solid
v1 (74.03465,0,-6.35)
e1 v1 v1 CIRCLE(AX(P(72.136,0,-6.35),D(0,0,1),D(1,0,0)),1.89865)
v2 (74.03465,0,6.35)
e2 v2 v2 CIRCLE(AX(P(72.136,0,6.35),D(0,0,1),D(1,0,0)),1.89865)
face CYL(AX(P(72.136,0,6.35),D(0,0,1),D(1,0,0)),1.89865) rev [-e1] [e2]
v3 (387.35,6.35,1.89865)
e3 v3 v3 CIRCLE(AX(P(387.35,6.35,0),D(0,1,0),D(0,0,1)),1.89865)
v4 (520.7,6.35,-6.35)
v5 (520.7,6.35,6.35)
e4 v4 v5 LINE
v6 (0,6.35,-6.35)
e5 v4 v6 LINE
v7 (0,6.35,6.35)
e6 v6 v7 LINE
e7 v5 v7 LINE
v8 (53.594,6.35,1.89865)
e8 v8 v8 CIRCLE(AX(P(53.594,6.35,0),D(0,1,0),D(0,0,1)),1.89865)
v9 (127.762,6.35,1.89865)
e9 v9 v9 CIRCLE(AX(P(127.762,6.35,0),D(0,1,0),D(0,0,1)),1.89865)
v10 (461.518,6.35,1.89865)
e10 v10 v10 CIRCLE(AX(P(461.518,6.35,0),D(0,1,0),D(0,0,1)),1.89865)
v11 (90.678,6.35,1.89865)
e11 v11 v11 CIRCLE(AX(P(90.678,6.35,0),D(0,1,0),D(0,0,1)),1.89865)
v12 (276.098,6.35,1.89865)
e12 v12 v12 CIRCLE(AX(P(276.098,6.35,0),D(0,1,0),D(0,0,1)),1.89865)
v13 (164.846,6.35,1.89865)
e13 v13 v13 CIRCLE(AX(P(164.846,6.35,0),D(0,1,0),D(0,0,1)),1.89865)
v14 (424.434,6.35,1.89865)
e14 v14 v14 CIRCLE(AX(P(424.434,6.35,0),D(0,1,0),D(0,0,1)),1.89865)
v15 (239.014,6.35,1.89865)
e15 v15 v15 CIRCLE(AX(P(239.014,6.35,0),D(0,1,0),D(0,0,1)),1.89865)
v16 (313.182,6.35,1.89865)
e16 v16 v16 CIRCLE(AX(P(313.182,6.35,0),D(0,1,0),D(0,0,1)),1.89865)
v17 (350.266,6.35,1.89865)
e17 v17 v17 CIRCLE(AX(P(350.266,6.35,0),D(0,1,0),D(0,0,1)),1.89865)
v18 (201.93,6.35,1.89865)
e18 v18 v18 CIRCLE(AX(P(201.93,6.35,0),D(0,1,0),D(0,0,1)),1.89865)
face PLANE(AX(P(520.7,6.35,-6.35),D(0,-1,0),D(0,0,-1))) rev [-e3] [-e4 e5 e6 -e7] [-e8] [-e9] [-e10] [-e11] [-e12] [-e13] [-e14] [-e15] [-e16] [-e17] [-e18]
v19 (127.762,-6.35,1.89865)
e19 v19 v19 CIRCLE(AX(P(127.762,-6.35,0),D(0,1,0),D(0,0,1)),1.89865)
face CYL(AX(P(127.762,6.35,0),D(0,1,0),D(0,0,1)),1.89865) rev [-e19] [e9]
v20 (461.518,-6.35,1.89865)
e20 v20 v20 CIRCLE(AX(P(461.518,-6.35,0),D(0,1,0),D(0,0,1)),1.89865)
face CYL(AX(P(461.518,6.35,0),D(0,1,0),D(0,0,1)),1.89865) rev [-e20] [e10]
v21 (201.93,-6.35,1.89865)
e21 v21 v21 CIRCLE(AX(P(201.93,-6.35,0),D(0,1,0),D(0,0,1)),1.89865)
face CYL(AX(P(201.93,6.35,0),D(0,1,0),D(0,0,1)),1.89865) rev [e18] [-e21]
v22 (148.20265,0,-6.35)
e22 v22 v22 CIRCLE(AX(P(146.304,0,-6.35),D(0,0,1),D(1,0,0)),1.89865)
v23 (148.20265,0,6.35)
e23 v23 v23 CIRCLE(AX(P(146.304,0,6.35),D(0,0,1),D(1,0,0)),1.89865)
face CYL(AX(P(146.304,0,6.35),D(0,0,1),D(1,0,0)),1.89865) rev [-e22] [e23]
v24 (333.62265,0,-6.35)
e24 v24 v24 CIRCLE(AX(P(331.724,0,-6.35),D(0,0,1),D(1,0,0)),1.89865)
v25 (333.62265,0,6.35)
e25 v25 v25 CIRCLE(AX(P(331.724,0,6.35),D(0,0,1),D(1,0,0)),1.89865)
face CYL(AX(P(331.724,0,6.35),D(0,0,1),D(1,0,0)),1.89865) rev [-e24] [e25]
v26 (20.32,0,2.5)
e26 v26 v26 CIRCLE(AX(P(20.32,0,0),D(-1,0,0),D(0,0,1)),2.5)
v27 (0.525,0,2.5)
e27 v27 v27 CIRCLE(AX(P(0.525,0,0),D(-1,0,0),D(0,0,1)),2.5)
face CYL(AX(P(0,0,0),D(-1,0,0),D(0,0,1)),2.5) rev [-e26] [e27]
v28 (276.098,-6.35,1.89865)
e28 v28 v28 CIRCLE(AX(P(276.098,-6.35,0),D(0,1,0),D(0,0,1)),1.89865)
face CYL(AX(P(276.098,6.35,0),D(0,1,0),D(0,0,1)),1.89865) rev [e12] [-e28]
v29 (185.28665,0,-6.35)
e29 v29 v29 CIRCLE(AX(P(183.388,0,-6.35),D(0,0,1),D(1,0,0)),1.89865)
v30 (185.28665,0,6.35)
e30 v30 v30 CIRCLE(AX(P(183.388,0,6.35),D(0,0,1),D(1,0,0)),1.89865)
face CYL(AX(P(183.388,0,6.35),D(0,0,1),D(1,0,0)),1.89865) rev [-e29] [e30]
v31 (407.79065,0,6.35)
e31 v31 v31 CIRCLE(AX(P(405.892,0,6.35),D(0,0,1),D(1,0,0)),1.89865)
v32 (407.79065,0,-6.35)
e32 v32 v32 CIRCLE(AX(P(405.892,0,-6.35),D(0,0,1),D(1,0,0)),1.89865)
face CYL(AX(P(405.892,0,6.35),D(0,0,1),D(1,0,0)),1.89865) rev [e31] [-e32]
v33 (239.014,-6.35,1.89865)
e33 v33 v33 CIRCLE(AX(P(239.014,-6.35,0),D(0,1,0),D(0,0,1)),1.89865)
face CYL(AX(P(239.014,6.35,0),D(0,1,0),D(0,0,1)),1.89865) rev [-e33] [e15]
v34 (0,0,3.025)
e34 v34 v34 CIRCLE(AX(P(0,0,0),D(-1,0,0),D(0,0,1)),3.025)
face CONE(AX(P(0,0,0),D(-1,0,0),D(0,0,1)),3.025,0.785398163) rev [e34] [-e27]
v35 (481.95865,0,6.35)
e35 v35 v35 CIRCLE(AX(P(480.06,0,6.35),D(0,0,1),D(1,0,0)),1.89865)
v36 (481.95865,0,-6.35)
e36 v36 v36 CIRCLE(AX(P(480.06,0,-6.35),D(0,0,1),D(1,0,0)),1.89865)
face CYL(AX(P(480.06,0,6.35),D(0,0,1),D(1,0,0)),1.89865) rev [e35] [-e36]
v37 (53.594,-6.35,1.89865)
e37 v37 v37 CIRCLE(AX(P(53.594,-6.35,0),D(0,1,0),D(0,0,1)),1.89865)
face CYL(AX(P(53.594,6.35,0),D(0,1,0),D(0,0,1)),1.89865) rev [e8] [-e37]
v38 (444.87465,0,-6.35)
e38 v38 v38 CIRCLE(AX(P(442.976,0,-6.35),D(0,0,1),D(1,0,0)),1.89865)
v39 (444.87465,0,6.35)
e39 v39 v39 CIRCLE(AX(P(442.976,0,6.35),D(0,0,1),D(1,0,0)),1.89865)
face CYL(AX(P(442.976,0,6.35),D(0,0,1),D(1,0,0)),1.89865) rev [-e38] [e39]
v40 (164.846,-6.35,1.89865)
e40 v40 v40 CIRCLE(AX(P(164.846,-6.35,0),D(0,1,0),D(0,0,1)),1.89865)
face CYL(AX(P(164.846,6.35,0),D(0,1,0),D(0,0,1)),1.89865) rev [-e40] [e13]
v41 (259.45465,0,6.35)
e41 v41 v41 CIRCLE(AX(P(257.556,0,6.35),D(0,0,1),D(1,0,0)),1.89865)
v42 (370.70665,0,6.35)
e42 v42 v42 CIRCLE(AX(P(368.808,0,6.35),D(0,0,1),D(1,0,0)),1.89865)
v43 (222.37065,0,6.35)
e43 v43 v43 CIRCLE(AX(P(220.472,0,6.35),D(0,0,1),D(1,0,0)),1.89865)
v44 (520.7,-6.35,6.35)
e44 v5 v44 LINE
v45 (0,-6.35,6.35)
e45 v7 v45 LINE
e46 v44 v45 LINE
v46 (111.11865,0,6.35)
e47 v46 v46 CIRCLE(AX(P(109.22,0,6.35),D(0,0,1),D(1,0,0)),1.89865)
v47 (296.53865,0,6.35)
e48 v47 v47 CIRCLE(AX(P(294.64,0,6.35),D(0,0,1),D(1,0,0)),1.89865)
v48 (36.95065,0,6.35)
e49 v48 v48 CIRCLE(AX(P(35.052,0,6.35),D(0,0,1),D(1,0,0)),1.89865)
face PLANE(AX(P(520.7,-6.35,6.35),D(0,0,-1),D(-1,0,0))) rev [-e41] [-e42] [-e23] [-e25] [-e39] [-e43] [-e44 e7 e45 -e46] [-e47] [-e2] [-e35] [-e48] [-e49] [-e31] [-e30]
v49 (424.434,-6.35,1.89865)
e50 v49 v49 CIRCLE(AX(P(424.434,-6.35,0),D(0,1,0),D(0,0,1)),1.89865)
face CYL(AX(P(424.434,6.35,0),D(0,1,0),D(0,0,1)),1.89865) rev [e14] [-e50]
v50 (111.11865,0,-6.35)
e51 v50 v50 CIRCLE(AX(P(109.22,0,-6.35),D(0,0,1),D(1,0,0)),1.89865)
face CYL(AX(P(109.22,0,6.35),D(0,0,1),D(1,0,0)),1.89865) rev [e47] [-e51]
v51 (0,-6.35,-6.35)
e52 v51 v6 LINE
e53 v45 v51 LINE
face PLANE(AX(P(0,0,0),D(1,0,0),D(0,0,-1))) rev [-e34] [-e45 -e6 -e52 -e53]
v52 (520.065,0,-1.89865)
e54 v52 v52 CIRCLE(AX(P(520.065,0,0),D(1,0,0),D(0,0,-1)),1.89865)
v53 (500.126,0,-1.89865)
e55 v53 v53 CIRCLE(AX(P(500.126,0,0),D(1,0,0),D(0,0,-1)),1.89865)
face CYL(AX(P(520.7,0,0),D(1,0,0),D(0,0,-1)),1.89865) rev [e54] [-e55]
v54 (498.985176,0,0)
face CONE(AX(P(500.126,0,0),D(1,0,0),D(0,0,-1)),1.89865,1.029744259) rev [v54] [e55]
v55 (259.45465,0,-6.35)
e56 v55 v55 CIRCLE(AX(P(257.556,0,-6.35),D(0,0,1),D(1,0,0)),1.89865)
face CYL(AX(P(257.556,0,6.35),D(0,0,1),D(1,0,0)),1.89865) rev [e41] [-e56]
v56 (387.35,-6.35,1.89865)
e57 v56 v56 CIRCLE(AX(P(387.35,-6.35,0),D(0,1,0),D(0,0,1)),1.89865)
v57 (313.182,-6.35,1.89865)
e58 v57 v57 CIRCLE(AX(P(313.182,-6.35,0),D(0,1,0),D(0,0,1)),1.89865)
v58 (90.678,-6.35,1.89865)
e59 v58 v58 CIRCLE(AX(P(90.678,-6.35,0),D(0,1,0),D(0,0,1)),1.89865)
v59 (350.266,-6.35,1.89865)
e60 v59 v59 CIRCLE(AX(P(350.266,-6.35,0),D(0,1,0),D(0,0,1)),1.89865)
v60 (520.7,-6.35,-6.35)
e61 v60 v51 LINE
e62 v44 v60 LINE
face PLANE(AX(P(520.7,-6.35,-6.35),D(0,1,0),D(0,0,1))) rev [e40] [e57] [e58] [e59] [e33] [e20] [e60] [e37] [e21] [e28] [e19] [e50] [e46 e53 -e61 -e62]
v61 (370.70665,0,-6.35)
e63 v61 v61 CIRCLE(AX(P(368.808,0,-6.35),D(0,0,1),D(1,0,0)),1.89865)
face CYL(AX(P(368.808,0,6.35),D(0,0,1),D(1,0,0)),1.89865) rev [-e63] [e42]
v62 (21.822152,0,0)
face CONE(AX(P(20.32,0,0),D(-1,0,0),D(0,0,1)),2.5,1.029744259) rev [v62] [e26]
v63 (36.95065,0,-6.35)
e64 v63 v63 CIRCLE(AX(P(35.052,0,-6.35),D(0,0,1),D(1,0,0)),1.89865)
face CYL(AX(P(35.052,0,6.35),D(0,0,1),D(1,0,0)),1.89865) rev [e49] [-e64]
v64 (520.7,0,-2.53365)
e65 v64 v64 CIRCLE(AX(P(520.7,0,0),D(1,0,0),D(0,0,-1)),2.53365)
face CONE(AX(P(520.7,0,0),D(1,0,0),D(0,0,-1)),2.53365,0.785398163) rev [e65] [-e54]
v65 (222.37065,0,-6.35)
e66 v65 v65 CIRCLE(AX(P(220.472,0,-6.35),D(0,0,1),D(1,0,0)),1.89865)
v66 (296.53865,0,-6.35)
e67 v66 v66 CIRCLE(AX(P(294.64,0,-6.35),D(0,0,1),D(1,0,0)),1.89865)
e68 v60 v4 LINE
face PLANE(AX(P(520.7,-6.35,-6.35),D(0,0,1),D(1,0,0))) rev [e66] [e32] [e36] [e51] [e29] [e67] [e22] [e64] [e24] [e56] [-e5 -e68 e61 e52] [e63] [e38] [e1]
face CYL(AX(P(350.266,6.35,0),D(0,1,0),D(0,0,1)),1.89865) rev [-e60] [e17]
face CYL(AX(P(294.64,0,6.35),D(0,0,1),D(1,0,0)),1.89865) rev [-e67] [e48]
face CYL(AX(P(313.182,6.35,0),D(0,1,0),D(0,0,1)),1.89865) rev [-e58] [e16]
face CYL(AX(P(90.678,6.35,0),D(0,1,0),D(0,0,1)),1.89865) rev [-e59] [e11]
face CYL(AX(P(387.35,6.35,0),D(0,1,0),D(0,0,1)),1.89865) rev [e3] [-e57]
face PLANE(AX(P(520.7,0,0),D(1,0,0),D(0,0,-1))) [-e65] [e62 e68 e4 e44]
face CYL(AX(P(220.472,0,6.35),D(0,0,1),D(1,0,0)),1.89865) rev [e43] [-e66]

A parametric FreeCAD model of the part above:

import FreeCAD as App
import Part
import Sketcher
Q = App.Units.Quantity

doc = App.newDocument("Part")
params = doc.addObject("Spreadsheet::Sheet", "Params")
for row, (alias, value) in enumerate([
    ("sketch1_width", "0.5 in"),
    ("pad1_length", "20.5 in"),
    ("hole_diameter", "0.1495 in"),
    ("hole2_diameter", "0.1495 in"),
    ("hole3_diameter", "5 mm"),
    ("hole3_depth", "0.8 in"),
    ("hole3_csink_diameter", "6.05 mm"),
    ("hole4_diameter", "0.1495 in"),
    ("hole4_depth", "0.81 in"),
    ("hole4_csink_diameter", "0.1995 in"),
    ("linearpattern_pitch", "1.46 in"),
    ("linearpattern2_pitch", "1.46 in"),
], start=1):
    params.set(f"A{row}", alias)
    params.set(f"B{row}", "=" + value)
    params.setAlias(f"B{row}", alias)

body = doc.addObject("PartDesign::Body", "Body")

# Sketch on YZ plane
sketch1 = body.newObject("Sketcher::SketchObject", "Sketch")
sketch1.AttachmentSupport = (doc.getObject("YZ_Plane"), [""])
sketch1.MapMode = "FlatFace"
sketch1.addGeometry(Part.LineSegment(App.Vector(6, 6, 0), App.Vector(-6, 6, 0)), False)
sketch1.addGeometry(Part.LineSegment(App.Vector(-6, 6, 0), App.Vector(-6, -6, 0)), False)
sketch1.addGeometry(Part.LineSegment(App.Vector(-6, -6, 0), App.Vector(6, -6, 0)), False)
sketch1.addGeometry(Part.LineSegment(App.Vector(6, -6, 0), App.Vector(6, 6, 0)), False)
sketch1.addConstraint(Sketcher.Constraint("Coincident", 0, 2, 1, 1))
sketch1.addConstraint(Sketcher.Constraint("Coincident", 1, 2, 2, 1))
sketch1.addConstraint(Sketcher.Constraint("Coincident", 2, 2, 3, 1))
sketch1.addConstraint(Sketcher.Constraint("Coincident", 3, 2, 0, 1))
sketch1.addConstraint(Sketcher.Constraint("Horizontal", 0))
sketch1.addConstraint(Sketcher.Constraint("Vertical", 1))
sketch1.addConstraint(Sketcher.Constraint("Horizontal", 2))
sketch1.addConstraint(Sketcher.Constraint("Vertical", 3))
sketch1.addConstraint(Sketcher.Constraint("Symmetric", 0, 2, 2, 2, -1, 1))
sketch1.addConstraint(Sketcher.Constraint("Equal", 2, 1))
sketch1.addConstraint(Sketcher.Constraint("DistanceX", 0, 2, 0, 1, Q("0.5 in")))
sketch1.setExpression("Constraints[10]", "Params.sketch1_width")
pad1 = body.newObject("PartDesign::Pad", "Pad")
pad1.Profile = sketch1
pad1.setExpression("Length", "Params.pad1_length")

# Sketch on XY plane
sketch2 = body.newObject("Sketcher::SketchObject", "Sketch001")
sketch2.AttachmentSupport = (doc.getObject("XY_Plane"), [""])
sketch2.MapMode = "FlatFace"
sketch2.AttachmentOffset = App.Placement(App.Vector(0, 0, 0.25 * 25.4), App.Rotation())
sketch2.addGeometry(Part.Circle(App.Vector(35.1, 0, 0), App.Vector(0, 0, 1), 1.9), False)
sketch2.addConstraint(Sketcher.Constraint("PointOnObject", 0, 3, -1))
sketch2.addConstraint(Sketcher.Constraint("Diameter", 0, Q("0.1495 in")))
sketch2.addConstraint(Sketcher.Constraint("DistanceX", -1, 1, 0, 3, Q("1.38 in")))
doc.recompute()
hole = body.newObject("PartDesign::Hole", "Hole")
hole.Profile = sketch2
hole.ThreadType = "None"
hole.setExpression("Diameter", "Params.hole_diameter")
hole.DepthType = "ThroughAll"

# Sketch on XZ plane
sketch3 = body.newObject("Sketcher::SketchObject", "Sketch002")
sketch3.AttachmentSupport = (doc.getObject("XZ_Plane"), [""])
sketch3.MapMode = "FlatFace"
sketch3.AttachmentOffset = App.Placement(App.Vector(0, 0, -0.25 * 25.4), App.Rotation())
sketch3.addGeometry(Part.Circle(App.Vector(53.6, 0, 0), App.Vector(0, 0, 1), 1.9), False)
sketch3.addConstraint(Sketcher.Constraint("PointOnObject", 0, 3, -1))
sketch3.addConstraint(Sketcher.Constraint("Diameter", 0, Q("0.1495 in")))
sketch3.addConstraint(Sketcher.Constraint("DistanceX", -1, 1, 0, 3, Q("2.11 in")))
doc.recompute()
hole2 = body.newObject("PartDesign::Hole", "Hole001")
hole2.Profile = sketch3
hole2.ThreadType = "None"
hole2.setExpression("Diameter", "Params.hole2_diameter")
hole2.DepthType = "ThroughAll"
hole2.Reversed = True

# Sketch on YZ plane
sketch4 = body.newObject("Sketcher::SketchObject", "Sketch003")
sketch4.AttachmentSupport = (doc.getObject("YZ_Plane"), [""])
sketch4.MapMode = "FlatFace"
sketch4.addGeometry(Part.Circle(App.Vector(0, 0, 0), App.Vector(0, 0, 1), 2.5), False)
sketch4.addConstraint(Sketcher.Constraint("Coincident", 0, 3, -1, 1))
sketch4.addConstraint(Sketcher.Constraint("Diameter", 0, 5.0))
doc.recompute()
hole3 = body.newObject("PartDesign::Hole", "Hole002")
hole3.Profile = sketch4
hole3.ThreadType = "None"
hole3.setExpression("Diameter", "Params.hole3_diameter")
hole3.DepthType = "Dimension"
hole3.setExpression("Depth", "Params.hole3_depth")
hole3.DrillPoint = "Angled"
hole3.DrillPointAngle = 118
hole3.HoleCutType = "Countersink"
hole3.setExpression("HoleCutDiameter", "Params.hole3_csink_diameter")
hole3.HoleCutCountersinkAngle = 90
hole3.Reversed = True

# Sketch on YZ plane
sketch5 = body.newObject("Sketcher::SketchObject", "Sketch004")
sketch5.AttachmentSupport = (doc.getObject("YZ_Plane"), [""])
sketch5.MapMode = "FlatFace"
sketch5.AttachmentOffset = App.Placement(App.Vector(0, 0, 20.5 * 25.4), App.Rotation())
sketch5.addGeometry(Part.Circle(App.Vector(0, 0, 0), App.Vector(0, 0, 1), 1.9), False)
sketch5.addConstraint(Sketcher.Constraint("Coincident", 0, 3, -1, 1))
sketch5.addConstraint(Sketcher.Constraint("Diameter", 0, Q("0.1495 in")))
doc.recompute()
hole4 = body.newObject("PartDesign::Hole", "Hole003")
hole4.Profile = sketch5
hole4.ThreadType = "None"
hole4.setExpression("Diameter", "Params.hole4_diameter")
hole4.DepthType = "Dimension"
hole4.setExpression("Depth", "Params.hole4_depth")
hole4.DrillPoint = "Angled"
hole4.DrillPointAngle = 118
hole4.HoleCutType = "Countersink"
hole4.setExpression("HoleCutDiameter", "Params.hole4_csink_diameter")
hole4.HoleCutCountersinkAngle = 90
doc.recompute()

linearpattern = body.newObject("PartDesign::LinearPattern", "LinearPattern")
linearpattern.Originals = [hole]
linearpattern.Direction = (doc.getObject("X_Axis"), [""])
linearpattern.Mode = "offset"
linearpattern.setExpression("Offset", "Params.linearpattern_pitch")
linearpattern.Occurrences = 13
body.Tip = linearpattern
doc.recompute()

linearpattern2 = body.newObject("PartDesign::LinearPattern", "LinearPattern001")
linearpattern2.Originals = [hole2]
linearpattern2.Direction = (doc.getObject("X_Axis"), [""])
linearpattern2.Mode = "offset"
linearpattern2.setExpression("Offset", "Params.linearpattern2_pitch")
linearpattern2.Occurrences = 12
body.Tip = linearpattern2

doc.recompute()
